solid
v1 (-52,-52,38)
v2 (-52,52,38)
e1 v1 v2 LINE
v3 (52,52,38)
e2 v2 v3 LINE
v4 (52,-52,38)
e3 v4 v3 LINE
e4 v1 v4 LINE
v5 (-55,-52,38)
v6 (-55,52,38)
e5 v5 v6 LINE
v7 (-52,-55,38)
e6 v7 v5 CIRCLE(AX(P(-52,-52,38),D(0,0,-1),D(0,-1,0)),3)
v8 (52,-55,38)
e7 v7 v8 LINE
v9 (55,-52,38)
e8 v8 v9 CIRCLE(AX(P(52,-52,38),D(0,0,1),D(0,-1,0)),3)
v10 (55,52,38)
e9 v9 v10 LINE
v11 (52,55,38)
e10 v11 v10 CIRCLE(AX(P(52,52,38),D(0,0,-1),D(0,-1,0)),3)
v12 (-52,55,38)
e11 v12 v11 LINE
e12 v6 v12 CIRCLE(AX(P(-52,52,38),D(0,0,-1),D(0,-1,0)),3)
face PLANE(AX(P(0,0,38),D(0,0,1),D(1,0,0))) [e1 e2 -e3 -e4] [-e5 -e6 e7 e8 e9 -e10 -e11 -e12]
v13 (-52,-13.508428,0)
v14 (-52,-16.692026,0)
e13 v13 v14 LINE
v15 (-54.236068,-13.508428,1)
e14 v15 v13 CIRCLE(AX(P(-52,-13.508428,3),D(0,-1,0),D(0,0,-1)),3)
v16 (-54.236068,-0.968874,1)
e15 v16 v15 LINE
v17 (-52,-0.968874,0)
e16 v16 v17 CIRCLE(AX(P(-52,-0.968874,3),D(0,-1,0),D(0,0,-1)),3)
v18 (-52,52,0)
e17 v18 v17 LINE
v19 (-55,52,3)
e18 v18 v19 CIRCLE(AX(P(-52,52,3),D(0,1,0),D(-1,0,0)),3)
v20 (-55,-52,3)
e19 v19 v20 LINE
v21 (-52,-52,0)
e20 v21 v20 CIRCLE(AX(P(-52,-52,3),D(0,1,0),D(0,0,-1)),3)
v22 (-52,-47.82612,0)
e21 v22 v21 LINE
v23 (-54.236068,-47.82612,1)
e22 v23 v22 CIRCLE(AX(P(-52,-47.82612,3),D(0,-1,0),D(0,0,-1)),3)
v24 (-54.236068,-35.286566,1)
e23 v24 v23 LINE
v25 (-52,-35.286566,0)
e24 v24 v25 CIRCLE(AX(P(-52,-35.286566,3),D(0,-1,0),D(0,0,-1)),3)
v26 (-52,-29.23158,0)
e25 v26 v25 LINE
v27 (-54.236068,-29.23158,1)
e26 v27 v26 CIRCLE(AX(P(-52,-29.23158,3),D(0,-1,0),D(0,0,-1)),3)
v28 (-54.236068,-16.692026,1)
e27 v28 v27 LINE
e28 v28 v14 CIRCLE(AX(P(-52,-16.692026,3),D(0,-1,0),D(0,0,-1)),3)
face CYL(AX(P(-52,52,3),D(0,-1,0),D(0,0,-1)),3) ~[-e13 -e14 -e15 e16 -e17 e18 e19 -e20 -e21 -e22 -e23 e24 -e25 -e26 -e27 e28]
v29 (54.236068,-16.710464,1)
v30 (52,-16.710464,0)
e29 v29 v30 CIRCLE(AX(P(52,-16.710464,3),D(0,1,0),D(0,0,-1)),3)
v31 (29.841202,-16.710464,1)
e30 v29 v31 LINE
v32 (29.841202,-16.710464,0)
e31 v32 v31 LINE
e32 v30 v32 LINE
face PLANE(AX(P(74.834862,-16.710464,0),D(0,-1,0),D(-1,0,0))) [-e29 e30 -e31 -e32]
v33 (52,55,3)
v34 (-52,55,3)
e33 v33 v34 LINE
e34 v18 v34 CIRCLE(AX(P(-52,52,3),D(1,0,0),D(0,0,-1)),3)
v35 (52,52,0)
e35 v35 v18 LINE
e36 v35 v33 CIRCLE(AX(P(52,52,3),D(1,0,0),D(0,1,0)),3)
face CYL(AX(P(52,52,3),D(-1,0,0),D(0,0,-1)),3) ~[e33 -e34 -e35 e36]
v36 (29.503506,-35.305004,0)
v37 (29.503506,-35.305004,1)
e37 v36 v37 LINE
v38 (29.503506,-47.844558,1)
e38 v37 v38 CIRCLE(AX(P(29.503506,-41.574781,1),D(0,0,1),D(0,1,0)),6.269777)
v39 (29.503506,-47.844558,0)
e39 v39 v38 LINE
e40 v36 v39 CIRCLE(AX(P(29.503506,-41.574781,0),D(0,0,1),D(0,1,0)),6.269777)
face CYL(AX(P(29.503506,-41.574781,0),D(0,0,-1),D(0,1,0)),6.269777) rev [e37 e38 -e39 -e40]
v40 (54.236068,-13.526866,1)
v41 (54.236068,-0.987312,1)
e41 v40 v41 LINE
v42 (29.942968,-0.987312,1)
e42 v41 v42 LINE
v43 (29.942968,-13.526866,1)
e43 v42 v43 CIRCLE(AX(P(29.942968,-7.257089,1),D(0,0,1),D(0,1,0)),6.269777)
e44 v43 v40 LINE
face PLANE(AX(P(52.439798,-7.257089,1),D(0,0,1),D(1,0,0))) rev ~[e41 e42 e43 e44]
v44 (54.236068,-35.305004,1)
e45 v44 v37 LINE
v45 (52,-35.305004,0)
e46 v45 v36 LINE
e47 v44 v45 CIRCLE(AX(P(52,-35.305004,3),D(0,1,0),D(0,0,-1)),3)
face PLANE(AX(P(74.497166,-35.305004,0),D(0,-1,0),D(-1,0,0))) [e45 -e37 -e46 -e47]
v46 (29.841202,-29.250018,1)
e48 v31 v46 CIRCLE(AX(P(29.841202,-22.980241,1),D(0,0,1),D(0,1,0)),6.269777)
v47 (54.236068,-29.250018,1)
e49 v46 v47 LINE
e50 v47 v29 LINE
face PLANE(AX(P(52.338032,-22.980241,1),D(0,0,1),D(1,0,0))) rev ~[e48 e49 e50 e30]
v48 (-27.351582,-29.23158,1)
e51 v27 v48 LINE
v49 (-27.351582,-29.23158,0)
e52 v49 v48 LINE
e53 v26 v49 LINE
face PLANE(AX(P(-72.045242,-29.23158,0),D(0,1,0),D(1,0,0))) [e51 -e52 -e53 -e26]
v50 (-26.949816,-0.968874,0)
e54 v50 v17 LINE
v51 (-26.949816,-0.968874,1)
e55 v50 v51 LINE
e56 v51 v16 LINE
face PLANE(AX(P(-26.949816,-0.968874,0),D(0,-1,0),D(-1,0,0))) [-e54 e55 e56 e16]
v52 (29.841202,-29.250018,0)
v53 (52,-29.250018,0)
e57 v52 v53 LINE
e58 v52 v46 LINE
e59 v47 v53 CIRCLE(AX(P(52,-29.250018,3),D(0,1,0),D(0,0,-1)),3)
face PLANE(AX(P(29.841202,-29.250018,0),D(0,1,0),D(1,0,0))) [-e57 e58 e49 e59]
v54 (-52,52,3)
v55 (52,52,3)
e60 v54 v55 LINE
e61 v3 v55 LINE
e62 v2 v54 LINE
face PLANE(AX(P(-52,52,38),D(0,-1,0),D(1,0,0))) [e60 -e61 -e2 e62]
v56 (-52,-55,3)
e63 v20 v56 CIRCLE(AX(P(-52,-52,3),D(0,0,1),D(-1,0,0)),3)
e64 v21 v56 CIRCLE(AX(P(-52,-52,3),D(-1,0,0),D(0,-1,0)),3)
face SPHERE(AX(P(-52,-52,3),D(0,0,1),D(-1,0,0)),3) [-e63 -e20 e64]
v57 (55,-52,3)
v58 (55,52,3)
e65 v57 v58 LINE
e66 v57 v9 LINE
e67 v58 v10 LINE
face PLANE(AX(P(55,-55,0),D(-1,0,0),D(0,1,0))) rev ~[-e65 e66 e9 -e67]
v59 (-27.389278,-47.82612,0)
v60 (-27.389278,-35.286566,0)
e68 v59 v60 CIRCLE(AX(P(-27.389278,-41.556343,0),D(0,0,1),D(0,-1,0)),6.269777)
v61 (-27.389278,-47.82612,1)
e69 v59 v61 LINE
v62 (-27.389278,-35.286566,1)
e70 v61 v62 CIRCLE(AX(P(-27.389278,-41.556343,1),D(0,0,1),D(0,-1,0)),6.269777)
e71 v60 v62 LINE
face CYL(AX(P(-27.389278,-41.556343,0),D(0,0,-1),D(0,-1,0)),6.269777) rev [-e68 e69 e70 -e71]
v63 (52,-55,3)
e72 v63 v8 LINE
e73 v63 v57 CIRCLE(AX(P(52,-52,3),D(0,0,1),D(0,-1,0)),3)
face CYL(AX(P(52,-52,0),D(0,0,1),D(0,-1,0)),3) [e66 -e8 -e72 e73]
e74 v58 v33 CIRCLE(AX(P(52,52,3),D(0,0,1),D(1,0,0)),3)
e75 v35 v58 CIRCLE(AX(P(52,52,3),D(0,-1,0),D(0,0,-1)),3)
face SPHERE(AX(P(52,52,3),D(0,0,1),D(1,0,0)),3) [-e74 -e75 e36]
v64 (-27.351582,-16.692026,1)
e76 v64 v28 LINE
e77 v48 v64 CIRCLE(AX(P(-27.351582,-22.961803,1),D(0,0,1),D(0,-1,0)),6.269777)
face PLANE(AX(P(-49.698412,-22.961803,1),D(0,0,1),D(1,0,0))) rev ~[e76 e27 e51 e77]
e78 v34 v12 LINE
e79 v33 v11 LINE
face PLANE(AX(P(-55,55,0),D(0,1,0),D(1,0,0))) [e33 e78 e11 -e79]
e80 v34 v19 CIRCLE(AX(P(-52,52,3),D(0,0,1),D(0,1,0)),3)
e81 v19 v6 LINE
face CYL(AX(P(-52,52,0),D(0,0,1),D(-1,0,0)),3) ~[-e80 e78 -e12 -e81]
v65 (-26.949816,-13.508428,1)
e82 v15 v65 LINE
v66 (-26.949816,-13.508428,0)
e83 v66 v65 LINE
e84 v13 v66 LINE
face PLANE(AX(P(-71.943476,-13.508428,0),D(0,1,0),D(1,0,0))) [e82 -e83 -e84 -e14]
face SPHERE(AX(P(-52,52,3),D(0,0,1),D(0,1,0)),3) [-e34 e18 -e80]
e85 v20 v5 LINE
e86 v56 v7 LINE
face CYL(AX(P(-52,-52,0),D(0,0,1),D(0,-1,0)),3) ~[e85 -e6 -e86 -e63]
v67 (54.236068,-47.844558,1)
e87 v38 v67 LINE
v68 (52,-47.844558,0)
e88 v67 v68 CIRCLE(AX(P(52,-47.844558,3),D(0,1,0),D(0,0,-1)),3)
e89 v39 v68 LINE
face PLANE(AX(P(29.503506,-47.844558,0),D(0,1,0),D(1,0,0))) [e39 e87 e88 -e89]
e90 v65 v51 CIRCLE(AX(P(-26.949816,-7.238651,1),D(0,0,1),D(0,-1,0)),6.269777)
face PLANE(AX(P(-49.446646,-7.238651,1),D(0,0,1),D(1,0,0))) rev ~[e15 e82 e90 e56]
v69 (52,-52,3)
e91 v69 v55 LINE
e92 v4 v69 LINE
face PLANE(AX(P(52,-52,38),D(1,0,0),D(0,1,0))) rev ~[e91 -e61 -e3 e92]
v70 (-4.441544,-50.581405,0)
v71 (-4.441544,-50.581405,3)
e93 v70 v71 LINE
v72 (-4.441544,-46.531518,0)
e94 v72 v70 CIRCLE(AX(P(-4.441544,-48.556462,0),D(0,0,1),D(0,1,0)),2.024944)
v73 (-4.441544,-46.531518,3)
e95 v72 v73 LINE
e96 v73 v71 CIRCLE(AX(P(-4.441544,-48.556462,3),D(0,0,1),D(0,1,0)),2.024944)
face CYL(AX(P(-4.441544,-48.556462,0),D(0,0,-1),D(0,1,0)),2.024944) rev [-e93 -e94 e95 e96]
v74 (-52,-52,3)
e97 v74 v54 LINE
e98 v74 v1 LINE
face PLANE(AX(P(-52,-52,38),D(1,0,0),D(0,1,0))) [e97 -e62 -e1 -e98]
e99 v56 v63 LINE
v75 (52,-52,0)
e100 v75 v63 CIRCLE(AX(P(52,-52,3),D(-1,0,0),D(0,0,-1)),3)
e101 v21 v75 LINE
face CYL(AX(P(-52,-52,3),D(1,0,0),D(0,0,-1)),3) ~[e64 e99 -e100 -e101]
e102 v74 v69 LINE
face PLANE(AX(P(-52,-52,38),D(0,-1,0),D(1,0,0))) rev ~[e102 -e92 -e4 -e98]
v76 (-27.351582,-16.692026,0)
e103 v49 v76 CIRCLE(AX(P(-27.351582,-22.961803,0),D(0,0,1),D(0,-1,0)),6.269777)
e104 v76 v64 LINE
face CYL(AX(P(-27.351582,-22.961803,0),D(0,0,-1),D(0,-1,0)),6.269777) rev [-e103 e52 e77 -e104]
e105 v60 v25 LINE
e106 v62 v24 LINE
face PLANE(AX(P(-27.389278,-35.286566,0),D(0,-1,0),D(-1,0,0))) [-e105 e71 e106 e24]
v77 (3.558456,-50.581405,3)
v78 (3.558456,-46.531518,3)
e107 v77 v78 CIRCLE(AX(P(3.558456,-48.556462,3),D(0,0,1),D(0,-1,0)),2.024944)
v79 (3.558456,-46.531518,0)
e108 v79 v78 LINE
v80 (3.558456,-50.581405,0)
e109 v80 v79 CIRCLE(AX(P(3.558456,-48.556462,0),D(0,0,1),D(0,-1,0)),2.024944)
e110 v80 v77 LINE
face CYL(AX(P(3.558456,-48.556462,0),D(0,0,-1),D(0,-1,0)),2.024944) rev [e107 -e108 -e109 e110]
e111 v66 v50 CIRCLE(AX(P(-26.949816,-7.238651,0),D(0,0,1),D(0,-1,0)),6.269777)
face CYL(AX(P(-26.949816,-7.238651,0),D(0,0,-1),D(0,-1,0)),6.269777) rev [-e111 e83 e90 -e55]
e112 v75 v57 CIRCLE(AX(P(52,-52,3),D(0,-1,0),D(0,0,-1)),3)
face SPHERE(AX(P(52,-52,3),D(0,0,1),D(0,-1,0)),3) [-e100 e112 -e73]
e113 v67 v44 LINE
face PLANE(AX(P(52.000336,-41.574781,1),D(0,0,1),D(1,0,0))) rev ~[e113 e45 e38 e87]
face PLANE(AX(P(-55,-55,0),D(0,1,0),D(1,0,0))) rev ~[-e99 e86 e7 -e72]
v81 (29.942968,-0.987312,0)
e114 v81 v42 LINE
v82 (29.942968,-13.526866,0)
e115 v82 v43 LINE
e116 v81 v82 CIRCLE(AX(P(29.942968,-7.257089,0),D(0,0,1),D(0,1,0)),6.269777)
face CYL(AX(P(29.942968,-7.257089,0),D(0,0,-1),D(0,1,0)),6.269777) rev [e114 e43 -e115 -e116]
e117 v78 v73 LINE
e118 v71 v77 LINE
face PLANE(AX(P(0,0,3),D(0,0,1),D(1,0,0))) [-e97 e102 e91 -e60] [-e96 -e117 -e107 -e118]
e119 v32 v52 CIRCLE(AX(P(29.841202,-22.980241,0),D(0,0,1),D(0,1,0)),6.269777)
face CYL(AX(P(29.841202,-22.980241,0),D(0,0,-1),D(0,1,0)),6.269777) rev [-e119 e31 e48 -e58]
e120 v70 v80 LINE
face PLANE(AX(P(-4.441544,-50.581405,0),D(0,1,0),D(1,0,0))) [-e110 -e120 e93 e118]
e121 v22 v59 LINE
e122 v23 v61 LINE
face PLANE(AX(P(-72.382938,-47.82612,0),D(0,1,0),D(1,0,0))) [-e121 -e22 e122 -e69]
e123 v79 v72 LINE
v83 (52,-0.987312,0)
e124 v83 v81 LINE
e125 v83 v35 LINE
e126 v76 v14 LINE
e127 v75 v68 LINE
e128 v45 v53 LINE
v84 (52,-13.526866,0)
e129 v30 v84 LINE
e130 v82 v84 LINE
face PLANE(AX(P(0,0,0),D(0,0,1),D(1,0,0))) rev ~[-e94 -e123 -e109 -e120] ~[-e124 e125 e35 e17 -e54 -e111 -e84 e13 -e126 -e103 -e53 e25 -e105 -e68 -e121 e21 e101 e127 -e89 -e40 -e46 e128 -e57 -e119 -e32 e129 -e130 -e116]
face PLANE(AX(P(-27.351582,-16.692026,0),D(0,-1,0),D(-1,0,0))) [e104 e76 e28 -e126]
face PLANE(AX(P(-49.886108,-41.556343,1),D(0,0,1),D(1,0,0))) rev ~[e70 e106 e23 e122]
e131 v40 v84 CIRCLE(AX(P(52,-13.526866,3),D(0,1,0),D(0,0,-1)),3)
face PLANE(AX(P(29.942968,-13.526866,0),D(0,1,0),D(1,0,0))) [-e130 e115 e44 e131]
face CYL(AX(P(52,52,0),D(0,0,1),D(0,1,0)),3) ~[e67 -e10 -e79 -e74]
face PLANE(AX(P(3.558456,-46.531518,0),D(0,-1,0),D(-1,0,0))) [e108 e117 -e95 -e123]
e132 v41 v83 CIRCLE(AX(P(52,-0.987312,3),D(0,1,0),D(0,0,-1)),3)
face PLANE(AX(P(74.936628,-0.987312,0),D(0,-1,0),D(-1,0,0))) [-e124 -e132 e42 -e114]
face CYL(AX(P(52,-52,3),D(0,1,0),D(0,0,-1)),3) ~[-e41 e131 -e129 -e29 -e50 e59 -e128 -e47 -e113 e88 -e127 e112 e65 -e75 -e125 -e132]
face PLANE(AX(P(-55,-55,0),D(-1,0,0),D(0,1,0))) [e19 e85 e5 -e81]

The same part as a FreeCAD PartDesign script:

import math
import FreeCAD as App
import Part
import Sketcher

V = App.Vector


def edges_at(feature, points):
    """Names of the edges that pass closest to the given points."""
    edges = feature.Shape.Edges
    near = lambda p: min(range(len(edges)), key=lambda i: edges[i].distToShape(Part.Vertex(*p))[0])
    return sorted({f"Edge{near(p) + 1}" for p in points})

doc = App.newDocument("Part")
body = doc.addObject("PartDesign::Body", "Body")

# Sketch on XY plane
sketch1 = body.newObject("Sketcher::SketchObject", "Sketch")
sketch1.AttachmentSupport = (doc.getObject("XY_Plane"), [""])
sketch1.MapMode = "FlatFace"
sketch1.addGeometry([
    Part.LineSegment(V(-55, 55, 0), V(-55, -55, 0)),
    Part.LineSegment(V(-55, -55, 0), V(55, -55, 0)),
    Part.LineSegment(V(55, -55, 0), V(55, 55, 0)),
    Part.LineSegment(V(55, 55, 0), V(-55, 55, 0)),
], False)
sketch1.addConstraint([
    Sketcher.Constraint("Coincident", 0, 2, 1, 1),
    Sketcher.Constraint("Coincident", 1, 2, 2, 1),
    Sketcher.Constraint("Coincident", 2, 2, 3, 1),
    Sketcher.Constraint("Coincident", 3, 2, 0, 1),
    Sketcher.Constraint("Vertical", 0),
    Sketcher.Constraint("Horizontal", 1),
    Sketcher.Constraint("Vertical", 2),
    Sketcher.Constraint("Horizontal", 3),
    Sketcher.Constraint("Symmetric", 0, 2, 2, 2, -1, 1),
    Sketcher.Constraint("Equal", 3, 0),
    Sketcher.Constraint("DistanceX", 1, 1, 1, 2, 110.0),
])
pad1 = body.newObject("PartDesign::Pad", "Pad")
pad1.Profile = sketch1
pad1.Length = 38

# Sketch on XY plane
sketch2 = body.newObject("Sketcher::SketchObject", "Sketch001")
sketch2.AttachmentSupport = (doc.getObject("XY_Plane"), [""])
sketch2.MapMode = "FlatFace"
sketch2.AttachmentOffset = App.Placement(V(0, 0, 38), App.Rotation())
sketch2.addGeometry([
    Part.LineSegment(V(-52, 52, 0), V(-52, -52, 0)),
    Part.LineSegment(V(-52, -52, 0), V(52, -52, 0)),
    Part.LineSegment(V(52, -52, 0), V(52, 52, 0)),
    Part.LineSegment(V(52, 52, 0), V(-52, 52, 0)),
], False)
sketch2.addConstraint([
    Sketcher.Constraint("Coincident", 0, 2, 1, 1),
    Sketcher.Constraint("Coincident", 1, 2, 2, 1),
    Sketcher.Constraint("Coincident", 2, 2, 3, 1),
    Sketcher.Constraint("Coincident", 3, 2, 0, 1),
    Sketcher.Constraint("Vertical", 0),
    Sketcher.Constraint("Horizontal", 1),
    Sketcher.Constraint("Vertical", 2),
    Sketcher.Constraint("Horizontal", 3),
    Sketcher.Constraint("Symmetric", 0, 2, 2, 2, -1, 1),
    Sketcher.Constraint("Equal", 3, 0),
    Sketcher.Constraint("DistanceX", 1, 1, 1, 2, 104.0),
])
pocket1 = body.newObject("PartDesign::Pocket", "Pocket")
pocket1.Profile = sketch2
pocket1.Length = 32
doc.recompute()

fillet = body.newObject("PartDesign::Fillet", "Fillet")
fillet.Base = (pocket1, edges_at(pocket1, [(55, -55, 19), (55, 55, 19)]))
fillet.Radius = 3
doc.recompute()

fillet2 = body.newObject("PartDesign::Fillet", "Fillet001")
fillet2.Base = (fillet, edges_at(fillet, [(-55, 55, 19), (-55, -55, 19)]))
fillet2.Radius = 3

# Sketch on XY plane
sketch3 = body.newObject("Sketcher::SketchObject", "Sketch002")
sketch3.AttachmentSupport = (doc.getObject("XY_Plane"), [""])
sketch3.MapMode = "FlatFace"
sketch3.AttachmentOffset = App.Placement(V(0, 0, 6), App.Rotation())
sketch3.addGeometry([
    Part.LineSegment(V(3.9, -47.3, 0), V(-3.9, -47.3, 0)),
    Part.ArcOfCircle(Part.Circle(V(-3.9, -48.5, 0), V(0, 0, 1), 1.2), math.radians(90), math.radians(270)),
    Part.LineSegment(V(-3.9, -49.8, 0), V(3.9, -49.8, 0)),
    Part.ArcOfCircle(Part.Circle(V(3.9, -48.5, 0), V(0, 0, 1), 1.2), math.radians(-90), math.radians(90)),
], False)
sketch3.addConstraint([
    Sketcher.Constraint("Tangent", 0, 2, 1, 1),
    Sketcher.Constraint("Tangent", 1, 2, 2, 1),
    Sketcher.Constraint("Tangent", 2, 2, 3, 1),
    Sketcher.Constraint("Tangent", 3, 2, 0, 1),
    Sketcher.Constraint("Horizontal", 0),
    Sketcher.Constraint("Horizontal", 2),
    Sketcher.Constraint("Radius", 1, 1.25),
    Sketcher.Constraint("DistanceX", 0, 2, 0, 1, 7.818284),
    Sketcher.Constraint("DistanceX", 1, 3, -1, 1, 3.909142),
    Sketcher.Constraint("DistanceY", 1, 3, -1, 1, 48.50538),
])
pocket2 = body.newObject("PartDesign::Pocket", "Pocket001")
pocket2.Profile = sketch3
pocket2.Type = "ThroughAll"
doc.recompute()

fillet3 = body.newObject("PartDesign::Fillet", "Fillet002")
fillet3.Base = (pocket2, edges_at(pocket2, [
    (55, 0, 0),
    (54.121, 54.121, 0),
    (54.121, -54.121, 0),
    (0, -55, 0),
    (-55, 0, 0),
    (0, 55, 0),
    (-54.121, 54.121, 0),
    (-54.121, -54.121, 0),
]))
fillet3.Radius = 3

# Sketch on XY plane
sketch4 = body.newObject("Sketcher::SketchObject", "Sketch003")
sketch4.AttachmentSupport = (doc.getObject("XY_Plane"), [""])
sketch4.MapMode = "FlatFace"
sketch4.addGeometry([
    Part.LineSegment(V(-72, -17, 0), V(-27, -17, 0)),  # 0
    Part.ArcOfCircle(Part.Circle(V(-27, -23, 0), V(0, 0, 1), 6), math.radians(-90), math.radians(90)),  # 1
    Part.LineSegment(V(-27, -29, 0), V(-72, -29, 0)),  # 2
    Part.ArcOfCircle(Part.Circle(V(-72, -23, 0), V(0, 0, 1), 6), math.radians(90), math.radians(270)),  # 3
    Part.LineSegment(V(-72, -35, 0), V(-27, -35, 0)),  # 4
    Part.ArcOfCircle(Part.Circle(V(-27, -42, 0), V(0, 0, 1), 6), math.radians(-90), math.radians(90)),  # 5
    Part.LineSegment(V(-27, -48, 0), V(-72, -48, 0)),  # 6
    Part.ArcOfCircle(Part.Circle(V(-72, -42, 0), V(0, 0, 1), 6), math.radians(90), math.radians(270)),  # 7
    Part.LineSegment(V(-72, -1, 0), V(-27, -1, 0)),  # 8
    Part.ArcOfCircle(Part.Circle(V(-27, -7, 0), V(0, 0, 1), 6), math.radians(-90), math.radians(90)),  # 9
    Part.LineSegment(V(-27, -14, 0), V(-72, -14, 0)),  # 10
    Part.ArcOfCircle(Part.Circle(V(-72, -7, 0), V(0, 0, 1), 6), math.radians(90), math.radians(270)),  # 11
    Part.LineSegment(V(30, -17, 0), V(75, -17, 0)),  # 12
    Part.ArcOfCircle(Part.Circle(V(75, -23, 0), V(0, 0, 1), 6), math.radians(-90), math.radians(90)),  # 13
    Part.LineSegment(V(75, -29, 0), V(30, -29, 0)),  # 14
    Part.ArcOfCircle(Part.Circle(V(30, -23, 0), V(0, 0, 1), 6), math.radians(90), math.radians(270)),  # 15
    Part.LineSegment(V(30, -35, 0), V(74, -35, 0)),  # 16
    Part.ArcOfCircle(Part.Circle(V(74, -42, 0), V(0, 0, 1), 6), math.radians(-90), math.radians(90)),  # 17
    Part.LineSegment(V(74, -48, 0), V(30, -48, 0)),  # 18
    Part.ArcOfCircle(Part.Circle(V(30, -42, 0), V(0, 0, 1), 6), math.radians(90), math.radians(270)),  # 19
    Part.LineSegment(V(30, -1, 0), V(75, -1, 0)),  # 20
    Part.ArcOfCircle(Part.Circle(V(75, -7, 0), V(0, 0, 1), 6), math.radians(-90), math.radians(90)),  # 21
    Part.LineSegment(V(75, -14, 0), V(30, -14, 0)),  # 22
    Part.ArcOfCircle(Part.Circle(V(30, -7, 0), V(0, 0, 1), 6), math.radians(90), math.radians(270)),  # 23
], False)
sketch4.addConstraint([
    Sketcher.Constraint("Tangent", 0, 2, 1, 2),
    Sketcher.Constraint("Tangent", 1, 1, 2, 1),
    Sketcher.Constraint("Tangent", 2, 2, 3, 2),
    Sketcher.Constraint("Tangent", 3, 1, 0, 1),
    Sketcher.Constraint("Tangent", 4, 2, 5, 2),
    Sketcher.Constraint("Tangent", 5, 1, 6, 1),
    Sketcher.Constraint("Tangent", 6, 2, 7, 2),
    Sketcher.Constraint("Tangent", 7, 1, 4, 1),
    Sketcher.Constraint("Tangent", 8, 2, 9, 2),
    Sketcher.Constraint("Tangent", 9, 1, 10, 1),
    Sketcher.Constraint("Tangent", 10, 2, 11, 2),
    Sketcher.Constraint("Tangent", 11, 1, 8, 1),
    Sketcher.Constraint("Tangent", 12, 2, 13, 2),
    Sketcher.Constraint("Tangent", 13, 1, 14, 1),
    Sketcher.Constraint("Tangent", 14, 2, 15, 2),
    Sketcher.Constraint("Tangent", 15, 1, 12, 1),
    Sketcher.Constraint("Tangent", 16, 2, 17, 2),
    Sketcher.Constraint("Tangent", 17, 1, 18, 1),
    Sketcher.Constraint("Tangent", 18, 2, 19, 2),
    Sketcher.Constraint("Tangent", 19, 1, 16, 1),
    Sketcher.Constraint("Tangent", 20, 2, 21, 2),
    Sketcher.Constraint("Tangent", 21, 1, 22, 1),
    Sketcher.Constraint("Tangent", 22, 2, 23, 2),
    Sketcher.Constraint("Tangent", 23, 1, 20, 1),
    Sketcher.Constraint("Horizontal", 0),
    Sketcher.Constraint("Horizontal", 2),
    Sketcher.Constraint("Horizontal", 4),
    Sketcher.Constraint("Horizontal", 6),
    Sketcher.Constraint("Horizontal", 8),
    Sketcher.Constraint("Horizontal", 10),
    Sketcher.Constraint("Horizontal", 12),
    Sketcher.Constraint("Horizontal", 14),
    Sketcher.Constraint("Horizontal", 16),
    Sketcher.Constraint("Horizontal", 18),
    Sketcher.Constraint("Horizontal", 20),
    Sketcher.Constraint("Horizontal", 22),
    Sketcher.Constraint("Equal", 3, 5),
    Sketcher.Constraint("Equal", 7, 9),
    Sketcher.Constraint("Equal", 11, 13),
    Sketcher.Constraint("Equal", 15, 17),
    Sketcher.Constraint("Equal", 19, 21),
    Sketcher.Constraint("Equal", 6, 8),
    Sketcher.Constraint("Equal", 10, 12),
    Sketcher.Constraint("Equal", 14, 16),
    Sketcher.Constraint("Equal", 18, 20),
    Sketcher.Constraint("Radius", 1, 6.269777),
    Sketcher.Constraint("DistanceX", 0, 1, 0, 2, 44.69366),
    Sketcher.Constraint("DistanceX", 4, 1, 4, 2, 44.99366),
    Sketcher.Constraint("DistanceY", 5, 3, 13, 3, 18.576101),
    Sketcher.Constraint("DistanceX", 1, 3, -1, 1, 27.351582),
    Sketcher.Constraint("DistanceY", 9, 3, -1, 1, 7.238651),
    Sketcher.Constraint("DistanceY", 13, 3, -1, 1, 22.980241),
    Sketcher.Constraint("DistanceY", 17, 3, -1, 1, 41.574781),
    Sketcher.Constraint("DistanceX", -1, 1, 21, 3, 74.936628),
    Sketcher.Constraint("DistanceY", 21, 3, -1, 1, 7.257089),
    Sketcher.Constraint("DistanceY", 1, 1, -1, 1, 29.23158),
    Sketcher.Constraint("DistanceX", 7, 3, 9, 3, 45.433122),
    Sketcher.Constraint("DistanceX", 5, 3, 13, 3, 102.22414),
    Sketcher.Constraint("DistanceX", 9, 3, 17, 3, 101.446982),
    Sketcher.Constraint("DistanceX", 1, 3, 19, 3, 56.855088),
])
pocket3 = body.newObject("PartDesign::Pocket", "Pocket002")
pocket3.Profile = sketch4
pocket3.Length = 1
pocket3.Reversed = True

# Sketch on XY plane
sketch5 = body.newObject("Sketcher::SketchObject", "Sketch004")
sketch5.AttachmentSupport = (doc.getObject("XY_Plane"), [""])
sketch5.MapMode = "FlatFace"
sketch5.addGeometry([
    Part.LineSegment(V(-4.4, -46.5, 0), V(3.6, -46.5, 0)),
    Part.ArcOfCircle(Part.Circle(V(3.6, -48.6, 0), V(0, 0, 1), 2), math.radians(-90), math.radians(90)),
    Part.LineSegment(V(3.6, -50.6, 0), V(-4.4, -50.6, 0)),
    Part.ArcOfCircle(Part.Circle(V(-4.4, -48.6, 0), V(0, 0, 1), 2), math.radians(90), math.radians(270)),
], False)
sketch5.addConstraint([
    Sketcher.Constraint("Tangent", 0, 2, 1, 2),
    Sketcher.Constraint("Tangent", 1, 1, 2, 1),
    Sketcher.Constraint("Tangent", 2, 2, 3, 2),
    Sketcher.Constraint("Tangent", 3, 1, 0, 1),
    Sketcher.Constraint("Horizontal", 0),
    Sketcher.Constraint("Horizontal", 2),
    Sketcher.Constraint("DistanceX", 0, 1, 0, 2, 8.0),
    Sketcher.Constraint("Radius", 1, 2.024944),
    Sketcher.Constraint("DistanceY", 1, 3, -1, 1, 48.556462),
    Sketcher.Constraint("DistanceX", -1, 1, 1, 3, 3.558456),
])
pocket4 = body.newObject("PartDesign::Pocket", "Pocket003")
pocket4.Profile = sketch5
pocket4.Length = 3
pocket4.Reversed = True

# Sketch on XY plane
sketch6 = body.newObject("Sketcher::SketchObject", "Sketch005")
sketch6.AttachmentSupport = (doc.getObject("XY_Plane"), [""])
sketch6.MapMode = "FlatFace"
sketch6.AttachmentOffset = App.Placement(V(0, 0, 6), App.Rotation())
sketch6.addGeometry([
    Part.LineSegment(V(-52, 52, 0), V(-52, -52, 0)),
    Part.LineSegment(V(-52, -52, 0), V(52, -52, 0)),
    Part.LineSegment(V(52, -52, 0), V(52, 52, 0)),
    Part.LineSegment(V(52, 52, 0), V(-52, 52, 0)),
], False)
sketch6.addConstraint([
    Sketcher.Constraint("Coincident", 0, 2, 1, 1),
    Sketcher.Constraint("Coincident", 1, 2, 2, 1),
    Sketcher.Constraint("Coincident", 2, 2, 3, 1),
    Sketcher.Constraint("Coincident", 3, 2, 0, 1),
    Sketcher.Constraint("Vertical", 0),
    Sketcher.Constraint("Horizontal", 1),
    Sketcher.Constraint("Vertical", 2),
    Sketcher.Constraint("Horizontal", 3),
    Sketcher.Constraint("Symmetric", 0, 2, 2, 2, -1, 1),
    Sketcher.Constraint("Equal", 3, 0),
    Sketcher.Constraint("DistanceX", 1, 1, 1, 2, 104.0),
])
pocket5 = body.newObject("PartDesign::Pocket", "Pocket004")
pocket5.Profile = sketch6
pocket5.Length = 3

doc.recompute()
